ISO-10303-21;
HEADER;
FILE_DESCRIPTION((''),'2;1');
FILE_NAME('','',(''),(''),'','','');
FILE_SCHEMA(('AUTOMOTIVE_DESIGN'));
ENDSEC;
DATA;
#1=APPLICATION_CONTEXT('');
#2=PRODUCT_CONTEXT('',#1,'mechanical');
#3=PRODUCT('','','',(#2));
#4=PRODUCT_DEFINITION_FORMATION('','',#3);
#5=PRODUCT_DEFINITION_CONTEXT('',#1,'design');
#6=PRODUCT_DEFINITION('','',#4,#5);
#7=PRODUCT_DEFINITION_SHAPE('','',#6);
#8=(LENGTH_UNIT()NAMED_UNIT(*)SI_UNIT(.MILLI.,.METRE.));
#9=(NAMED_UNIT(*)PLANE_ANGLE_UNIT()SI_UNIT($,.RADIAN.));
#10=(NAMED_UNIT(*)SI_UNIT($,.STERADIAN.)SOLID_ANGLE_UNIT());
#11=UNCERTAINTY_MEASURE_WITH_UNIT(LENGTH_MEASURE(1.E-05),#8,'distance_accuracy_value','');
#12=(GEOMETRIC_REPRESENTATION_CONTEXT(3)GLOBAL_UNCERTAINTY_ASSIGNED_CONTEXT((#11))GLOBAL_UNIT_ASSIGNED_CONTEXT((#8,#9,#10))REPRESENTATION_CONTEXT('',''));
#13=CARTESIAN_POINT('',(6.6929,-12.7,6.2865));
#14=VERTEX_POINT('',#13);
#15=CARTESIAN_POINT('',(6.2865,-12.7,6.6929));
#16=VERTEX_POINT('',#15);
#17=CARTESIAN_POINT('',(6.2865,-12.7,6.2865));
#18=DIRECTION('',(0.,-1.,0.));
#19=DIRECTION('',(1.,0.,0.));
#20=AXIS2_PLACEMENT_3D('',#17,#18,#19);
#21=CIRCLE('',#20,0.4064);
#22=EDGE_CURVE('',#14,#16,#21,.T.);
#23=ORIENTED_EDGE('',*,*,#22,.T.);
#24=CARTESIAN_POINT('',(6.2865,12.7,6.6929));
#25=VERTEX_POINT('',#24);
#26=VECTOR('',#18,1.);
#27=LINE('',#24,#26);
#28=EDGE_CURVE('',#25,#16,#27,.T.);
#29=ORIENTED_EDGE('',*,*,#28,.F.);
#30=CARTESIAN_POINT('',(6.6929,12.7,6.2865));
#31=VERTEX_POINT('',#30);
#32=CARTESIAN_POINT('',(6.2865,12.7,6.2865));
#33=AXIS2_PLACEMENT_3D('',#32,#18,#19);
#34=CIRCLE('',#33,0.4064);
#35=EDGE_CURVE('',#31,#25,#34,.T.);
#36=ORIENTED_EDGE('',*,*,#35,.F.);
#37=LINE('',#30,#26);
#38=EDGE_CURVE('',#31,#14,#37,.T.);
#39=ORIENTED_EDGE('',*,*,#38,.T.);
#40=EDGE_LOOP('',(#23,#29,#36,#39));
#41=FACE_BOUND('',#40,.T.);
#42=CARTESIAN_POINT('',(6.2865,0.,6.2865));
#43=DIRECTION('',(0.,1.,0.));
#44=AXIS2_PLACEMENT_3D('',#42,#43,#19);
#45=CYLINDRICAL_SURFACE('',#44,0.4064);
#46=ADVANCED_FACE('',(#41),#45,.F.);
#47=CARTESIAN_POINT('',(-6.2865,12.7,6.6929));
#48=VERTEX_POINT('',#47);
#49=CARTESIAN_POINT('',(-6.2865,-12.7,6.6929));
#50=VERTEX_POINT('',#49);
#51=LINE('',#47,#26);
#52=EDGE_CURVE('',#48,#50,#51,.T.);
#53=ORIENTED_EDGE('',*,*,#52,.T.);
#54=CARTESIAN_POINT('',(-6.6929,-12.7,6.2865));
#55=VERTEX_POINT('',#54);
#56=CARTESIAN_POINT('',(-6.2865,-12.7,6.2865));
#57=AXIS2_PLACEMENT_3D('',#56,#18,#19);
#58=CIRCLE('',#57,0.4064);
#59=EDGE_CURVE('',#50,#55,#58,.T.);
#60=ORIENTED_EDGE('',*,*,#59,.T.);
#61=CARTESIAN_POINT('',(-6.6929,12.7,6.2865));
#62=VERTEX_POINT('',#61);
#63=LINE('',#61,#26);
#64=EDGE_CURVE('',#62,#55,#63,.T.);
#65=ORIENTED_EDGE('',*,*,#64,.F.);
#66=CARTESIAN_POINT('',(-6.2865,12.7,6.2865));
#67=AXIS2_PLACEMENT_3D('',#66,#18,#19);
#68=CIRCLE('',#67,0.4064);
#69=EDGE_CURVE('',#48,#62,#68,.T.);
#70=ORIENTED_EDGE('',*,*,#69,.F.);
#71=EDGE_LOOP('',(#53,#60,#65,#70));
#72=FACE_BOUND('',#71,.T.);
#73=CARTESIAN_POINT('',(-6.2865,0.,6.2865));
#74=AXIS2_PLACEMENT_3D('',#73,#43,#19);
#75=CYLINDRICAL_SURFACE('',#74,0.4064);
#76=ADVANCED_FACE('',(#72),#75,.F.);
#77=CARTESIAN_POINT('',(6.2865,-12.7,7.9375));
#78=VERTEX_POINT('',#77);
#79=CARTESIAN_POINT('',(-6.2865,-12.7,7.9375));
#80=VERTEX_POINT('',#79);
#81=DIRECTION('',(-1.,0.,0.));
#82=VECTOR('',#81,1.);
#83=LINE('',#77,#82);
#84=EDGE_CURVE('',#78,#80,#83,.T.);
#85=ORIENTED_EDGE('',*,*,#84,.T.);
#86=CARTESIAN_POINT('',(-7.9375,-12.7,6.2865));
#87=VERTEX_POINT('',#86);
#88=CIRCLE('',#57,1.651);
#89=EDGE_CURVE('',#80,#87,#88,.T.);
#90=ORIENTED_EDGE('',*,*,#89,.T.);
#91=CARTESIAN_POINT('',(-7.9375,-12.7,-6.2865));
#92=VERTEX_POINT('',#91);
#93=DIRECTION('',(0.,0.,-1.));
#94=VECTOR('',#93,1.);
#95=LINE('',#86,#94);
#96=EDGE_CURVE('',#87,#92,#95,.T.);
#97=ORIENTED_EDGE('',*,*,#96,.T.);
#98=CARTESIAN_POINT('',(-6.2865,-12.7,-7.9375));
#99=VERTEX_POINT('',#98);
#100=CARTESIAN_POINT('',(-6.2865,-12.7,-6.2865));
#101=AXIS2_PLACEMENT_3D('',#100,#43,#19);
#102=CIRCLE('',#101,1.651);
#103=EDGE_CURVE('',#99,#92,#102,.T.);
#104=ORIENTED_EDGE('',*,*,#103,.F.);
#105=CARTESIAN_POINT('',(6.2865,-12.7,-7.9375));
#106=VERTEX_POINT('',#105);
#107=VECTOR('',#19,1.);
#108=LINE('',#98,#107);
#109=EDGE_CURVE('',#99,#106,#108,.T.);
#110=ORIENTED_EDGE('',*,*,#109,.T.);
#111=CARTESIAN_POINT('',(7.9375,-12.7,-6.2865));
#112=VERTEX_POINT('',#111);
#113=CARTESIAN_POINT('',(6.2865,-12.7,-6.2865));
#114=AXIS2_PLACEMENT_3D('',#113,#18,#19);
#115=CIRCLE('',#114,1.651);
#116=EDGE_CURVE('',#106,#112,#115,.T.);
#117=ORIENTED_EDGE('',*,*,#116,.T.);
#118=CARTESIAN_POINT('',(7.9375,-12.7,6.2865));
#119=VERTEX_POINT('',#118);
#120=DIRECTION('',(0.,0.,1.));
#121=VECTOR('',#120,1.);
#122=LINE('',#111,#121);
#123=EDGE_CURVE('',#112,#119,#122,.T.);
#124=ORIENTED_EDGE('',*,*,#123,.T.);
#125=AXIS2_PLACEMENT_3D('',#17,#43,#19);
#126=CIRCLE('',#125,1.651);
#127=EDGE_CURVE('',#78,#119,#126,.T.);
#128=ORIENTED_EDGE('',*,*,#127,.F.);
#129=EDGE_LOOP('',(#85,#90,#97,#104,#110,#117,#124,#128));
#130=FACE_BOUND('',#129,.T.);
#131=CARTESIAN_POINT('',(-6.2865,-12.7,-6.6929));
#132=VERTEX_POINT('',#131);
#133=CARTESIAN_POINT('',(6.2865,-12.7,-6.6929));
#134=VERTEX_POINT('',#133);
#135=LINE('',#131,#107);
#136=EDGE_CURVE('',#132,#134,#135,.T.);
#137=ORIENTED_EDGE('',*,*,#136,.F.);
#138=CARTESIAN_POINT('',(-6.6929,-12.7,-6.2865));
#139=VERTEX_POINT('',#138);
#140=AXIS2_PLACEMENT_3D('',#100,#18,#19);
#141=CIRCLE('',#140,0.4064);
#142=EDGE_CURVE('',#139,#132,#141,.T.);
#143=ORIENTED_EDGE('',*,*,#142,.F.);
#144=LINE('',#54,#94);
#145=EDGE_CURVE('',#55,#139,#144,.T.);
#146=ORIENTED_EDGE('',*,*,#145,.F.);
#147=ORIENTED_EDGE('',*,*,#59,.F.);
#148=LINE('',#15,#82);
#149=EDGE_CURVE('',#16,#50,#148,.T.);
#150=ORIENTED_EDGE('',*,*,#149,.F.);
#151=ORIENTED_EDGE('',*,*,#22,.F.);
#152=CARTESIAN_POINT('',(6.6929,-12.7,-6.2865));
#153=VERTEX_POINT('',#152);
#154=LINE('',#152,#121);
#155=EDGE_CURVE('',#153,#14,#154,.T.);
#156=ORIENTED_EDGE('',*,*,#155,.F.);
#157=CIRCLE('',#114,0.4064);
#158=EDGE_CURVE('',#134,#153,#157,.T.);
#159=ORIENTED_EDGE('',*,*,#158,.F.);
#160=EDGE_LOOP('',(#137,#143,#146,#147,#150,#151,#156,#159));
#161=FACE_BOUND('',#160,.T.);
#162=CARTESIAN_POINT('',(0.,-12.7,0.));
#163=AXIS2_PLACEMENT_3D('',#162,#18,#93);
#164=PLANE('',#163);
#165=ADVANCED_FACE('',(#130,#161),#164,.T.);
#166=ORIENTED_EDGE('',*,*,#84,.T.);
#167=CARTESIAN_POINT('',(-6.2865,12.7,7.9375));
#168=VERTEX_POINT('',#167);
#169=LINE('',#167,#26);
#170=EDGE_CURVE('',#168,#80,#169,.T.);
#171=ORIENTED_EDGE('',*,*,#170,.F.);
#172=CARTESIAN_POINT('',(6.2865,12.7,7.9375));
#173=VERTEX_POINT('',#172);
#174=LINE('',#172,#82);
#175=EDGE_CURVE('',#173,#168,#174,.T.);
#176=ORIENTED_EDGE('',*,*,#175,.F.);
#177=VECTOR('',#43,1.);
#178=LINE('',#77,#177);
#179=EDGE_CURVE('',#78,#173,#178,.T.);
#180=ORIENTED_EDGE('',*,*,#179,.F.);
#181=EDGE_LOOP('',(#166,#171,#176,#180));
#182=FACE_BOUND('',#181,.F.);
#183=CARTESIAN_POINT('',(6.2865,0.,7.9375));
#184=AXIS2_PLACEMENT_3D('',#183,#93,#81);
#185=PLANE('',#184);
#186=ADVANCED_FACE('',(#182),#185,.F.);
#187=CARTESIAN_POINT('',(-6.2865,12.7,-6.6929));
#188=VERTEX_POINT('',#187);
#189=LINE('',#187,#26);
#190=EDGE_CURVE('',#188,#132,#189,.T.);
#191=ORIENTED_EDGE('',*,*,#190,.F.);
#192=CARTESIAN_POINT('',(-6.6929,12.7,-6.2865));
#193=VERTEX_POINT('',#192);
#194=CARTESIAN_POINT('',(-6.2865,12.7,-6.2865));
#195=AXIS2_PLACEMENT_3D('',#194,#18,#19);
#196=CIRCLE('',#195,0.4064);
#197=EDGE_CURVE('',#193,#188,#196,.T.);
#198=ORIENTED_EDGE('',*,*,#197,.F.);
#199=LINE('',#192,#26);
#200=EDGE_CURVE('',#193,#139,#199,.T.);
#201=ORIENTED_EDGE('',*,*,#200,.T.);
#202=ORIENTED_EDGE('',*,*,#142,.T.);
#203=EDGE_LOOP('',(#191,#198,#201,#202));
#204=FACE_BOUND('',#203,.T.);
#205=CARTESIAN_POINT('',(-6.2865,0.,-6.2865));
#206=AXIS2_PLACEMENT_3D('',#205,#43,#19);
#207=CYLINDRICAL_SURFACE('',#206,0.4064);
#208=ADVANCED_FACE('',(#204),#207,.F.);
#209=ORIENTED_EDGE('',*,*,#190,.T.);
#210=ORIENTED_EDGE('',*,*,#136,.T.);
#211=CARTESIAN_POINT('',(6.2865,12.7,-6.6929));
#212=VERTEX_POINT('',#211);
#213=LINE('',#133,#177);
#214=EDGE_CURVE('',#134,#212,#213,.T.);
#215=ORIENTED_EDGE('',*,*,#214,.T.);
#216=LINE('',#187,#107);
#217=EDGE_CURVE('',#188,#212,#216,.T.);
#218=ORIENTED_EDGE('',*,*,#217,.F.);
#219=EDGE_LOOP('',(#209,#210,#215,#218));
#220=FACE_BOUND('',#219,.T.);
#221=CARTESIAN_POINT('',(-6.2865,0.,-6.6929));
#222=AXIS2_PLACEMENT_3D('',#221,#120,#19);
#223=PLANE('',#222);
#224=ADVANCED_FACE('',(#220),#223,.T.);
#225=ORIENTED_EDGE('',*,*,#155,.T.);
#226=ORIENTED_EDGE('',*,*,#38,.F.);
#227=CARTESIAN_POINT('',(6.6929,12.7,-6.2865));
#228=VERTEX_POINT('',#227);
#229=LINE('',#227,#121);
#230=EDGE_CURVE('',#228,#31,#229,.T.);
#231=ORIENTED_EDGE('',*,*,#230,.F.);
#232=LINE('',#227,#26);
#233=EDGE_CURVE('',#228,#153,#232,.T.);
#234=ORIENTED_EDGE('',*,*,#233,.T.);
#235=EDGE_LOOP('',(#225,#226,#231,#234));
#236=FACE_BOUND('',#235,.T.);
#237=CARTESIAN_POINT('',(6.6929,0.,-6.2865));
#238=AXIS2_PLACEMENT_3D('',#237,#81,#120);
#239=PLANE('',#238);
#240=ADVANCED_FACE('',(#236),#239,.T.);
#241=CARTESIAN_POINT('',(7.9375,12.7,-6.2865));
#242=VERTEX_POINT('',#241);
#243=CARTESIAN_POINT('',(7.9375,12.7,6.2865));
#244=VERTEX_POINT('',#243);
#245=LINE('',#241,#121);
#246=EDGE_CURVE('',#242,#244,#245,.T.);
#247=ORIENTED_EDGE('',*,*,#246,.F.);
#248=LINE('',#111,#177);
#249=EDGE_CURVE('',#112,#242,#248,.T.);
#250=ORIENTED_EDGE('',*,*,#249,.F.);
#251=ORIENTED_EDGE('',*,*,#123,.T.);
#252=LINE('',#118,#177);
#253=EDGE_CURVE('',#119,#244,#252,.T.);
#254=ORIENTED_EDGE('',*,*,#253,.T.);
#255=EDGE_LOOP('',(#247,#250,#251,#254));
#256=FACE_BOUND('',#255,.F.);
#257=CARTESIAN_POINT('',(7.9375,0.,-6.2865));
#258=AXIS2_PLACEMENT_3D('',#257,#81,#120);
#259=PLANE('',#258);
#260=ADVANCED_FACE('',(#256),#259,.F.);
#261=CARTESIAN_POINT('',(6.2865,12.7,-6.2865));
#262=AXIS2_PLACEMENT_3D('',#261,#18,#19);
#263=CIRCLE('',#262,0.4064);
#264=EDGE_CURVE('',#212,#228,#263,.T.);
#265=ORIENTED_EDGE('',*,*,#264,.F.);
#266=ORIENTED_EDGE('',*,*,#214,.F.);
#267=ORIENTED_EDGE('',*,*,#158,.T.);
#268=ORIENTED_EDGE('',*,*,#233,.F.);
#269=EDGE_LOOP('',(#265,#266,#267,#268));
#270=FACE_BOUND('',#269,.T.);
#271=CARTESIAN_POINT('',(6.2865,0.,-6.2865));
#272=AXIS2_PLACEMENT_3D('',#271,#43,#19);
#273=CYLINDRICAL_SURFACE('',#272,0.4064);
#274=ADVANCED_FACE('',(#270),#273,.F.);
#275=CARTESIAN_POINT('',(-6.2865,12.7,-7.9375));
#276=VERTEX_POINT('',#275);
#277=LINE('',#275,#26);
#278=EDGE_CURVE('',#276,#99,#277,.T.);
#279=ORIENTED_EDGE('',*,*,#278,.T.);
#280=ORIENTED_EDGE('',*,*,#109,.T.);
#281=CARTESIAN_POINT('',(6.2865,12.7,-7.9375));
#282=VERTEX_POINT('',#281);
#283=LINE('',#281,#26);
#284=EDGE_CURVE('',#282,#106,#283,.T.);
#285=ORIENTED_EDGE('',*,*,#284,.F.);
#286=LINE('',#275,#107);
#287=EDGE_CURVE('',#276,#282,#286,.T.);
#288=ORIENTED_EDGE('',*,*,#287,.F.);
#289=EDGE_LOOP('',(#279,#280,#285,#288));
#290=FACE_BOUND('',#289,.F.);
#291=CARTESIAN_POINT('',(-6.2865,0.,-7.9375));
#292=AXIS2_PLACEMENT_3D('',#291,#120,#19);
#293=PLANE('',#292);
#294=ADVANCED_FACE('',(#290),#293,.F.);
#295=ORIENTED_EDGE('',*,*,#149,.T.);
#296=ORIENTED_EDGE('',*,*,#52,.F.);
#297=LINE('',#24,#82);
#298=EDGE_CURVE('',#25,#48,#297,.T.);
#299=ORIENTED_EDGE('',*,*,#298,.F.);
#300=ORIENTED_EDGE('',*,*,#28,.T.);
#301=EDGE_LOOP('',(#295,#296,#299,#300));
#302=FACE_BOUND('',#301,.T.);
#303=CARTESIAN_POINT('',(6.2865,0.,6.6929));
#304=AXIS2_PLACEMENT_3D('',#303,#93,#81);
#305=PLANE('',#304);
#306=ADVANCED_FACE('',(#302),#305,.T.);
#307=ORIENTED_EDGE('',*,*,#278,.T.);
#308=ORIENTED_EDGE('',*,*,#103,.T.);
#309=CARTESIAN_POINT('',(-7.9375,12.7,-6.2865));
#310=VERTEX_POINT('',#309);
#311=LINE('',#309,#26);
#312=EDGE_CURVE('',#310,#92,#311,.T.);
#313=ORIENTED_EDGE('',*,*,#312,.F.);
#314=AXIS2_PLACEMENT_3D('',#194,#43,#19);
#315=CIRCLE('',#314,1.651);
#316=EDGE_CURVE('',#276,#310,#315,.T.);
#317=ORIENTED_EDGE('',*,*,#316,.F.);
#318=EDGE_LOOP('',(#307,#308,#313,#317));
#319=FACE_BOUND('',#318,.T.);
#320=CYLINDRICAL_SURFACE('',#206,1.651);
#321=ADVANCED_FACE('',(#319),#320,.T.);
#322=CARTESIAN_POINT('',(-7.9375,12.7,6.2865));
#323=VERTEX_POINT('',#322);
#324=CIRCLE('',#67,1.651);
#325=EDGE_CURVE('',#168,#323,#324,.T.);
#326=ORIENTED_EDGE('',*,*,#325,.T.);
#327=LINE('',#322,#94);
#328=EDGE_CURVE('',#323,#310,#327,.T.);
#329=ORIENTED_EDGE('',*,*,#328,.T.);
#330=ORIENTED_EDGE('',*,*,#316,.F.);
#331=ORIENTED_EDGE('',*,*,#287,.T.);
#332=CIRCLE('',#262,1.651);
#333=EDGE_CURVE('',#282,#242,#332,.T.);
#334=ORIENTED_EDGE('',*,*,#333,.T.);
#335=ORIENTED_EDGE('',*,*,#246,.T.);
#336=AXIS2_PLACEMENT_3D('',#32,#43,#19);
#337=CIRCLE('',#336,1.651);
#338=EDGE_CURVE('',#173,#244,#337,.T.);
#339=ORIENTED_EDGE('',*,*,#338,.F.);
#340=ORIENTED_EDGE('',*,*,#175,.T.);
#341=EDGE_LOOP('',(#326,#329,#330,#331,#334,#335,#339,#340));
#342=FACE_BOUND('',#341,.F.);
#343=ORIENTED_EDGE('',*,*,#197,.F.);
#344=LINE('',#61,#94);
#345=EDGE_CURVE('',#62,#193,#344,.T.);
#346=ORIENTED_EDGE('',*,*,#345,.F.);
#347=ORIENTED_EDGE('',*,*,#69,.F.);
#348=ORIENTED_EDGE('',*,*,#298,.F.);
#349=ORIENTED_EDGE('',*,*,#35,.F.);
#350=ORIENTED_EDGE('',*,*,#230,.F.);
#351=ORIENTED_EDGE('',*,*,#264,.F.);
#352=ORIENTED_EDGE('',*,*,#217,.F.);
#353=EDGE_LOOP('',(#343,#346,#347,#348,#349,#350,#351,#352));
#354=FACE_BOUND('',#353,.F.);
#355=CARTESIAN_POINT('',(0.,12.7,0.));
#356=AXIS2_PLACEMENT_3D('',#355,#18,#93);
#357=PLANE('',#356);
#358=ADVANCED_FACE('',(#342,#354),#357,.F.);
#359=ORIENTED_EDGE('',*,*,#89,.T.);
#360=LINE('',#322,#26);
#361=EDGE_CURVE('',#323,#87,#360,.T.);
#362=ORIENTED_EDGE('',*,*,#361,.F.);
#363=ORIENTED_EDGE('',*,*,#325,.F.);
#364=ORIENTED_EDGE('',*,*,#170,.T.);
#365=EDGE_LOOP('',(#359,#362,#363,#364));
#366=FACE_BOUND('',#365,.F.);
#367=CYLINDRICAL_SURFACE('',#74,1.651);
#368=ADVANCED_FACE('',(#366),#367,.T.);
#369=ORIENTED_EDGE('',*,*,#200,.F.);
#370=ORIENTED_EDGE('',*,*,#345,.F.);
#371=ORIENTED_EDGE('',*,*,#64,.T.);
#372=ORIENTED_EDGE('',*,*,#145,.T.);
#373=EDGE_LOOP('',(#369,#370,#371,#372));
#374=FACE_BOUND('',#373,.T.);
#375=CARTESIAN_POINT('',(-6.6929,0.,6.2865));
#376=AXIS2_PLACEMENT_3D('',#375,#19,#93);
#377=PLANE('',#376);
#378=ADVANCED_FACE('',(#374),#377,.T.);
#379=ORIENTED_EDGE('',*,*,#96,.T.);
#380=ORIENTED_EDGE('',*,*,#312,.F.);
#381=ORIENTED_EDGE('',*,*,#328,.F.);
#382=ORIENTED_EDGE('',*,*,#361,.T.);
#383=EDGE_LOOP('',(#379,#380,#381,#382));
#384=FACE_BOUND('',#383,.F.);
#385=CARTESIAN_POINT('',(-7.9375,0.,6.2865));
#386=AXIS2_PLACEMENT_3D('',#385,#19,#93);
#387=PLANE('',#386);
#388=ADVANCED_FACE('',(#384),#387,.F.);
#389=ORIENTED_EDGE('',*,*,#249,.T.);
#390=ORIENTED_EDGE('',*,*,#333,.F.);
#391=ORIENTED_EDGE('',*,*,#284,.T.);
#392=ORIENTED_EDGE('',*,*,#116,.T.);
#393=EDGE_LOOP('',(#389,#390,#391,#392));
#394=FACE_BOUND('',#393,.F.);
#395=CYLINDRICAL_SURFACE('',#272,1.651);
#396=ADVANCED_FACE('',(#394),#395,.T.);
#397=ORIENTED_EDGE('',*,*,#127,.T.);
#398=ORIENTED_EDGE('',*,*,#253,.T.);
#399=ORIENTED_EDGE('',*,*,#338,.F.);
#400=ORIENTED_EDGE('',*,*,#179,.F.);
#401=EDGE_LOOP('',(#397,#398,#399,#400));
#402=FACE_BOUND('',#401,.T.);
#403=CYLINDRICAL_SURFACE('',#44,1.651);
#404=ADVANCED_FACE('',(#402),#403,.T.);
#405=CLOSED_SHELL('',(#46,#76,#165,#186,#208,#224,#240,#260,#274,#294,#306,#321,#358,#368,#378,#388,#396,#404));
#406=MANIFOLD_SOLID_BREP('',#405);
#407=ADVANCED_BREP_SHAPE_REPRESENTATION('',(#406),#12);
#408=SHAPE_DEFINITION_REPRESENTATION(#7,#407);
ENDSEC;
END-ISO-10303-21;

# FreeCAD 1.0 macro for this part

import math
import FreeCAD as App
import Part
import Sketcher

V = App.Vector
Q = App.Units.Quantity

doc = App.newDocument("Part")
body = doc.addObject("PartDesign::Body", "Body")

# Sketch on XZ plane
sketch1 = body.newObject("Sketcher::SketchObject", "Sketch")
sketch1.AttachmentSupport = (doc.getObject("XZ_Plane"), [""])
sketch1.MapMode = "FlatFace"
sketch1.addGeometry([
    Part.ArcOfCircle(Part.Circle(V(6.2865, 6.2865, 0), V(0, 0, 1), 1.651), math.radians(0), math.radians(90)),  # 0
    Part.LineSegment(V(6.2865, 7.9375, 0), V(-6.2865, 7.9375, 0)),  # 1
    Part.ArcOfCircle(Part.Circle(V(-6.2865, 6.2865, 0), V(0, 0, 1), 1.651), math.radians(90), math.radians(180)),  # 2
    Part.LineSegment(V(-7.9375, 6.2865, 0), V(-7.9375, -6.2865, 0)),  # 3
    Part.ArcOfCircle(Part.Circle(V(-6.2865, -6.2865, 0), V(0, 0, 1), 1.651), math.radians(180), math.radians(270)),  # 4
    Part.LineSegment(V(-6.2865, -7.9375, 0), V(6.2865, -7.9375, 0)),  # 5
    Part.ArcOfCircle(Part.Circle(V(6.2865, -6.2865, 0), V(0, 0, 1), 1.651), math.radians(-90), math.radians(0)),  # 6
    Part.LineSegment(V(7.9375, -6.2865, 0), V(7.9375, 6.2865, 0)),  # 7
    Part.LineSegment(V(-6.2865, 6.6929, 0), V(6.2865, 6.6929, 0)),  # 8
    Part.ArcOfCircle(Part.Circle(V(6.2865, 6.2865, 0), V(0, 0, 1), 0.4064), math.radians(0), math.radians(90)),  # 9
    Part.LineSegment(V(6.6929, 6.2865, 0), V(6.6929, -6.2865, 0)),  # 10
    Part.ArcOfCircle(Part.Circle(V(6.2865, -6.2865, 0), V(0, 0, 1), 0.4064), math.radians(-90), math.radians(0)),  # 11
    Part.LineSegment(V(6.2865, -6.6929, 0), V(-6.2865, -6.6929, 0)),  # 12
    Part.ArcOfCircle(Part.Circle(V(-6.2865, -6.2865, 0), V(0, 0, 1), 0.4064), math.radians(180), math.radians(270)),  # 13
    Part.LineSegment(V(-6.6929, -6.2865, 0), V(-6.6929, 6.2865, 0)),  # 14
    Part.ArcOfCircle(Part.Circle(V(-6.2865, 6.2865, 0), V(0, 0, 1), 0.4064), math.radians(90), math.radians(180)),  # 15
], False)
sketch1.addConstraint([
    Sketcher.Constraint("Tangent", 0, 2, 1, 1),
    Sketcher.Constraint("Tangent", 1, 2, 2, 1),
    Sketcher.Constraint("Tangent", 2, 2, 3, 1),
    Sketcher.Constraint("Tangent", 3, 2, 4, 1),
    Sketcher.Constraint("Tangent", 4, 2, 5, 1),
    Sketcher.Constraint("Tangent", 5, 2, 6, 1),
    Sketcher.Constraint("Tangent", 6, 2, 7, 1),
    Sketcher.Constraint("Tangent", 7, 2, 0, 1),
    Sketcher.Constraint("Tangent", 8, 2, 9, 2),
    Sketcher.Constraint("Tangent", 9, 1, 10, 1),
    Sketcher.Constraint("Tangent", 10, 2, 11, 2),
    Sketcher.Constraint("Tangent", 11, 1, 12, 1),
    Sketcher.Constraint("Tangent", 12, 2, 13, 2),
    Sketcher.Constraint("Tangent", 13, 1, 14, 1),
    Sketcher.Constraint("Tangent", 14, 2, 15, 2),
    Sketcher.Constraint("Tangent", 15, 1, 8, 1),
    Sketcher.Constraint("Horizontal", 1),
    Sketcher.Constraint("Vertical", 3),
    Sketcher.Constraint("Horizontal", 5),
    Sketcher.Constraint("Vertical", 7),
    Sketcher.Constraint("Horizontal", 8),
    Sketcher.Constraint("Vertical", 10),
    Sketcher.Constraint("Horizontal", 12),
    Sketcher.Constraint("Vertical", 14),
    Sketcher.Constraint("Coincident", 9, 3, 0, 3),
    Sketcher.Constraint("Coincident", 11, 3, 6, 3),
    Sketcher.Constraint("Coincident", 13, 3, 4, 3),
    Sketcher.Constraint("Equal", 0, 2),
    Sketcher.Constraint("Equal", 2, 4),
    Sketcher.Constraint("Equal", 4, 6),
    Sketcher.Constraint("Equal", 13, 15),
    Sketcher.Constraint("Symmetric", 0, 3, 4, 3, -1, 1),
    Sketcher.Constraint("Equal", 12, 3),
    Sketcher.Constraint("Radius", 0, Q("0.065 in")),
    Sketcher.Constraint("Radius", 9, Q("0.016 in")),
    Sketcher.Constraint("DistanceX", 1, 2, 1, 1, Q("0.495 in")),
])
pad1 = body.newObject("PartDesign::Pad", "Pad")
pad1.Profile = sketch1
pad1.Length = Q("1 in")
pad1.Midplane = True

doc.recompute()
